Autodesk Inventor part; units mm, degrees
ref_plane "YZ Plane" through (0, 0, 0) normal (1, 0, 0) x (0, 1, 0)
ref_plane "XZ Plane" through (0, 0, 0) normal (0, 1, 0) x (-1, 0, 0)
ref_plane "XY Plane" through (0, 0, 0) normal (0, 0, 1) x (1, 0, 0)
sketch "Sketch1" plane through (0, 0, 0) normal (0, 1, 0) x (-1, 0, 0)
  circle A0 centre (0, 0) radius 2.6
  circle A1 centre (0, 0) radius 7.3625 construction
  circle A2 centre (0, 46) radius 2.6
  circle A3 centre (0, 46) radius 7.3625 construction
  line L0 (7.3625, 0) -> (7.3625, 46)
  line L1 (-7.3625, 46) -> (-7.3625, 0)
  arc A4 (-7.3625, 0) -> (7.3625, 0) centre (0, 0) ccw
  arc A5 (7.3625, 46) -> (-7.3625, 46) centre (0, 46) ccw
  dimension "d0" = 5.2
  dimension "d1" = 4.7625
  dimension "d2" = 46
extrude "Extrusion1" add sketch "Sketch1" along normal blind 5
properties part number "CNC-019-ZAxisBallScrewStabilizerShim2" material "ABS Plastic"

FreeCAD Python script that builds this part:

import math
import FreeCAD as App
import Part
import Sketcher
from FreeCAD import Vector
Q = App.Units.Quantity

doc = App.newDocument("Part")
body = doc.addObject("PartDesign::Body", "Body")

# Sketch on XZ plane
sketch1 = body.newObject("Sketcher::SketchObject", "Sketch")
sketch1.AttachmentSupport = (doc.getObject("XZ_Plane"), [""])
sketch1.MapMode = "FlatFace"
sketch1.addGeometry(Part.ArcOfCircle(Part.Circle(Vector(0, 0, 0), Vector(0, 0, 1), 7.4), math.radians(180), math.radians(360)), False)
sketch1.addGeometry(Part.LineSegment(Vector(-7.4, 0, 0), Vector(-7.4, 46, 0)), False)
sketch1.addGeometry(Part.ArcOfCircle(Part.Circle(Vector(0, 46, 0), Vector(0, 0, 1), 7.4), math.radians(0), math.radians(180)), False)
sketch1.addGeometry(Part.LineSegment(Vector(7.4, 46, 0), Vector(7.4, 0, 0)), False)
sketch1.addGeometry(Part.Circle(Vector(0, 0, 0), Vector(0, 0, 1), 2.6), False)
sketch1.addGeometry(Part.Circle(Vector(0, 46, 0), Vector(0, 0, 1), 2.6), False)
sketch1.addConstraint(Sketcher.Constraint("Tangent", 0, 1, 1, 1))
sketch1.addConstraint(Sketcher.Constraint("Tangent", 1, 2, 2, 2))
sketch1.addConstraint(Sketcher.Constraint("Tangent", 2, 1, 3, 1))
sketch1.addConstraint(Sketcher.Constraint("Tangent", 3, 2, 0, 2))
sketch1.addConstraint(Sketcher.Constraint("Vertical", 1))
sketch1.addConstraint(Sketcher.Constraint("Vertical", 3))
sketch1.addConstraint(Sketcher.Constraint("Coincident", 0, 3, -1, 1))
sketch1.addConstraint(Sketcher.Constraint("Coincident", 4, 3, -1, 1))
sketch1.addConstraint(Sketcher.Constraint("Coincident", 5, 3, 2, 3))
sketch1.addConstraint(Sketcher.Constraint("Equal", 4, 5))
sketch1.addConstraint(Sketcher.Constraint("Diameter", 4, Q("5.2 mm")))
sketch1.addConstraint(Sketcher.Constraint("DistanceY", 1, 1, 1, 2, Q("46 mm")))
sketch1.addConstraint(Sketcher.Constraint("Radius", 0, Q("7.3625 mm")))
pad1 = body.newObject("PartDesign::Pad", "Pad")
pad1.Profile = sketch1
pad1.Length = 5
pad1.Reversed = True

doc.recompute()
